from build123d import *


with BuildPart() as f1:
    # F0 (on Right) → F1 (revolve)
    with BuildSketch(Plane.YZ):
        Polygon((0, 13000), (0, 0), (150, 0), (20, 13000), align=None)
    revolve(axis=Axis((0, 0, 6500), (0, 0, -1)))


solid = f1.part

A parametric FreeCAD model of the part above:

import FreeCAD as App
import Part
import Sketcher

V = App.Vector

doc = App.newDocument("Part")
params = doc.addObject("Spreadsheet::Sheet", "Params")
for row, (alias, value) in enumerate([
    ("sketch1_width", "150 mm"),
    ("sketch1_width2", "20 mm"),
    ("sketch1_height", "13000 mm"),
    ("revolution_angle", "360 deg"),
], start=1):
    params.set(f"A{row}", alias)
    params.set(f"B{row}", "=" + value)
    params.setAlias(f"B{row}", alias)

body = doc.addObject("PartDesign::Body", "Body")

# Sketch on YZ plane
sketch1 = body.newObject("Sketcher::SketchObject", "Sketch")
sketch1.AttachmentSupport = (doc.getObject("YZ_Plane"), [""])
sketch1.MapMode = "FlatFace"
sketch1.addGeometry([
    Part.LineSegment(V(0, 13000, 0), V(0, 0, 0)),
    Part.LineSegment(V(0, 0, 0), V(150, 0, 0)),
    Part.LineSegment(V(150, 0, 0), V(20, 13000, 0)),
    Part.LineSegment(V(20, 13000, 0), V(0, 13000, 0)),
], False)
sketch1.addConstraint([
    Sketcher.Constraint("Coincident", 0, 2, 1, 1),
    Sketcher.Constraint("Coincident", 1, 2, 2, 1),
    Sketcher.Constraint("Coincident", 2, 2, 3, 1),
    Sketcher.Constraint("Coincident", 3, 2, 0, 1),
    Sketcher.Constraint("Vertical", 0),
    Sketcher.Constraint("Horizontal", 1),
    Sketcher.Constraint("Horizontal", 3),
    Sketcher.Constraint("Coincident", 0, 2, -1, 1),
    Sketcher.Constraint("DistanceX", 1, 1, 1, 2, 150.0),
    Sketcher.Constraint("DistanceX", 3, 2, 3, 1, 20.0),
    Sketcher.Constraint("DistanceY", 0, 2, 0, 1, 13000.0),
])
sketch1.setExpression("Constraints[8]", "Params.sketch1_width")
sketch1.setExpression("Constraints[9]", "Params.sketch1_width2")
sketch1.setExpression("Constraints[10]", "Params.sketch1_height")
revolution = body.newObject("PartDesign::Revolution", "Revolution")
revolution.Profile = sketch1
revolution.ReferenceAxis = (sketch1, ["V_Axis"])
revolution.setExpression("Angle", "Params.revolution_angle")

doc.recompute()
